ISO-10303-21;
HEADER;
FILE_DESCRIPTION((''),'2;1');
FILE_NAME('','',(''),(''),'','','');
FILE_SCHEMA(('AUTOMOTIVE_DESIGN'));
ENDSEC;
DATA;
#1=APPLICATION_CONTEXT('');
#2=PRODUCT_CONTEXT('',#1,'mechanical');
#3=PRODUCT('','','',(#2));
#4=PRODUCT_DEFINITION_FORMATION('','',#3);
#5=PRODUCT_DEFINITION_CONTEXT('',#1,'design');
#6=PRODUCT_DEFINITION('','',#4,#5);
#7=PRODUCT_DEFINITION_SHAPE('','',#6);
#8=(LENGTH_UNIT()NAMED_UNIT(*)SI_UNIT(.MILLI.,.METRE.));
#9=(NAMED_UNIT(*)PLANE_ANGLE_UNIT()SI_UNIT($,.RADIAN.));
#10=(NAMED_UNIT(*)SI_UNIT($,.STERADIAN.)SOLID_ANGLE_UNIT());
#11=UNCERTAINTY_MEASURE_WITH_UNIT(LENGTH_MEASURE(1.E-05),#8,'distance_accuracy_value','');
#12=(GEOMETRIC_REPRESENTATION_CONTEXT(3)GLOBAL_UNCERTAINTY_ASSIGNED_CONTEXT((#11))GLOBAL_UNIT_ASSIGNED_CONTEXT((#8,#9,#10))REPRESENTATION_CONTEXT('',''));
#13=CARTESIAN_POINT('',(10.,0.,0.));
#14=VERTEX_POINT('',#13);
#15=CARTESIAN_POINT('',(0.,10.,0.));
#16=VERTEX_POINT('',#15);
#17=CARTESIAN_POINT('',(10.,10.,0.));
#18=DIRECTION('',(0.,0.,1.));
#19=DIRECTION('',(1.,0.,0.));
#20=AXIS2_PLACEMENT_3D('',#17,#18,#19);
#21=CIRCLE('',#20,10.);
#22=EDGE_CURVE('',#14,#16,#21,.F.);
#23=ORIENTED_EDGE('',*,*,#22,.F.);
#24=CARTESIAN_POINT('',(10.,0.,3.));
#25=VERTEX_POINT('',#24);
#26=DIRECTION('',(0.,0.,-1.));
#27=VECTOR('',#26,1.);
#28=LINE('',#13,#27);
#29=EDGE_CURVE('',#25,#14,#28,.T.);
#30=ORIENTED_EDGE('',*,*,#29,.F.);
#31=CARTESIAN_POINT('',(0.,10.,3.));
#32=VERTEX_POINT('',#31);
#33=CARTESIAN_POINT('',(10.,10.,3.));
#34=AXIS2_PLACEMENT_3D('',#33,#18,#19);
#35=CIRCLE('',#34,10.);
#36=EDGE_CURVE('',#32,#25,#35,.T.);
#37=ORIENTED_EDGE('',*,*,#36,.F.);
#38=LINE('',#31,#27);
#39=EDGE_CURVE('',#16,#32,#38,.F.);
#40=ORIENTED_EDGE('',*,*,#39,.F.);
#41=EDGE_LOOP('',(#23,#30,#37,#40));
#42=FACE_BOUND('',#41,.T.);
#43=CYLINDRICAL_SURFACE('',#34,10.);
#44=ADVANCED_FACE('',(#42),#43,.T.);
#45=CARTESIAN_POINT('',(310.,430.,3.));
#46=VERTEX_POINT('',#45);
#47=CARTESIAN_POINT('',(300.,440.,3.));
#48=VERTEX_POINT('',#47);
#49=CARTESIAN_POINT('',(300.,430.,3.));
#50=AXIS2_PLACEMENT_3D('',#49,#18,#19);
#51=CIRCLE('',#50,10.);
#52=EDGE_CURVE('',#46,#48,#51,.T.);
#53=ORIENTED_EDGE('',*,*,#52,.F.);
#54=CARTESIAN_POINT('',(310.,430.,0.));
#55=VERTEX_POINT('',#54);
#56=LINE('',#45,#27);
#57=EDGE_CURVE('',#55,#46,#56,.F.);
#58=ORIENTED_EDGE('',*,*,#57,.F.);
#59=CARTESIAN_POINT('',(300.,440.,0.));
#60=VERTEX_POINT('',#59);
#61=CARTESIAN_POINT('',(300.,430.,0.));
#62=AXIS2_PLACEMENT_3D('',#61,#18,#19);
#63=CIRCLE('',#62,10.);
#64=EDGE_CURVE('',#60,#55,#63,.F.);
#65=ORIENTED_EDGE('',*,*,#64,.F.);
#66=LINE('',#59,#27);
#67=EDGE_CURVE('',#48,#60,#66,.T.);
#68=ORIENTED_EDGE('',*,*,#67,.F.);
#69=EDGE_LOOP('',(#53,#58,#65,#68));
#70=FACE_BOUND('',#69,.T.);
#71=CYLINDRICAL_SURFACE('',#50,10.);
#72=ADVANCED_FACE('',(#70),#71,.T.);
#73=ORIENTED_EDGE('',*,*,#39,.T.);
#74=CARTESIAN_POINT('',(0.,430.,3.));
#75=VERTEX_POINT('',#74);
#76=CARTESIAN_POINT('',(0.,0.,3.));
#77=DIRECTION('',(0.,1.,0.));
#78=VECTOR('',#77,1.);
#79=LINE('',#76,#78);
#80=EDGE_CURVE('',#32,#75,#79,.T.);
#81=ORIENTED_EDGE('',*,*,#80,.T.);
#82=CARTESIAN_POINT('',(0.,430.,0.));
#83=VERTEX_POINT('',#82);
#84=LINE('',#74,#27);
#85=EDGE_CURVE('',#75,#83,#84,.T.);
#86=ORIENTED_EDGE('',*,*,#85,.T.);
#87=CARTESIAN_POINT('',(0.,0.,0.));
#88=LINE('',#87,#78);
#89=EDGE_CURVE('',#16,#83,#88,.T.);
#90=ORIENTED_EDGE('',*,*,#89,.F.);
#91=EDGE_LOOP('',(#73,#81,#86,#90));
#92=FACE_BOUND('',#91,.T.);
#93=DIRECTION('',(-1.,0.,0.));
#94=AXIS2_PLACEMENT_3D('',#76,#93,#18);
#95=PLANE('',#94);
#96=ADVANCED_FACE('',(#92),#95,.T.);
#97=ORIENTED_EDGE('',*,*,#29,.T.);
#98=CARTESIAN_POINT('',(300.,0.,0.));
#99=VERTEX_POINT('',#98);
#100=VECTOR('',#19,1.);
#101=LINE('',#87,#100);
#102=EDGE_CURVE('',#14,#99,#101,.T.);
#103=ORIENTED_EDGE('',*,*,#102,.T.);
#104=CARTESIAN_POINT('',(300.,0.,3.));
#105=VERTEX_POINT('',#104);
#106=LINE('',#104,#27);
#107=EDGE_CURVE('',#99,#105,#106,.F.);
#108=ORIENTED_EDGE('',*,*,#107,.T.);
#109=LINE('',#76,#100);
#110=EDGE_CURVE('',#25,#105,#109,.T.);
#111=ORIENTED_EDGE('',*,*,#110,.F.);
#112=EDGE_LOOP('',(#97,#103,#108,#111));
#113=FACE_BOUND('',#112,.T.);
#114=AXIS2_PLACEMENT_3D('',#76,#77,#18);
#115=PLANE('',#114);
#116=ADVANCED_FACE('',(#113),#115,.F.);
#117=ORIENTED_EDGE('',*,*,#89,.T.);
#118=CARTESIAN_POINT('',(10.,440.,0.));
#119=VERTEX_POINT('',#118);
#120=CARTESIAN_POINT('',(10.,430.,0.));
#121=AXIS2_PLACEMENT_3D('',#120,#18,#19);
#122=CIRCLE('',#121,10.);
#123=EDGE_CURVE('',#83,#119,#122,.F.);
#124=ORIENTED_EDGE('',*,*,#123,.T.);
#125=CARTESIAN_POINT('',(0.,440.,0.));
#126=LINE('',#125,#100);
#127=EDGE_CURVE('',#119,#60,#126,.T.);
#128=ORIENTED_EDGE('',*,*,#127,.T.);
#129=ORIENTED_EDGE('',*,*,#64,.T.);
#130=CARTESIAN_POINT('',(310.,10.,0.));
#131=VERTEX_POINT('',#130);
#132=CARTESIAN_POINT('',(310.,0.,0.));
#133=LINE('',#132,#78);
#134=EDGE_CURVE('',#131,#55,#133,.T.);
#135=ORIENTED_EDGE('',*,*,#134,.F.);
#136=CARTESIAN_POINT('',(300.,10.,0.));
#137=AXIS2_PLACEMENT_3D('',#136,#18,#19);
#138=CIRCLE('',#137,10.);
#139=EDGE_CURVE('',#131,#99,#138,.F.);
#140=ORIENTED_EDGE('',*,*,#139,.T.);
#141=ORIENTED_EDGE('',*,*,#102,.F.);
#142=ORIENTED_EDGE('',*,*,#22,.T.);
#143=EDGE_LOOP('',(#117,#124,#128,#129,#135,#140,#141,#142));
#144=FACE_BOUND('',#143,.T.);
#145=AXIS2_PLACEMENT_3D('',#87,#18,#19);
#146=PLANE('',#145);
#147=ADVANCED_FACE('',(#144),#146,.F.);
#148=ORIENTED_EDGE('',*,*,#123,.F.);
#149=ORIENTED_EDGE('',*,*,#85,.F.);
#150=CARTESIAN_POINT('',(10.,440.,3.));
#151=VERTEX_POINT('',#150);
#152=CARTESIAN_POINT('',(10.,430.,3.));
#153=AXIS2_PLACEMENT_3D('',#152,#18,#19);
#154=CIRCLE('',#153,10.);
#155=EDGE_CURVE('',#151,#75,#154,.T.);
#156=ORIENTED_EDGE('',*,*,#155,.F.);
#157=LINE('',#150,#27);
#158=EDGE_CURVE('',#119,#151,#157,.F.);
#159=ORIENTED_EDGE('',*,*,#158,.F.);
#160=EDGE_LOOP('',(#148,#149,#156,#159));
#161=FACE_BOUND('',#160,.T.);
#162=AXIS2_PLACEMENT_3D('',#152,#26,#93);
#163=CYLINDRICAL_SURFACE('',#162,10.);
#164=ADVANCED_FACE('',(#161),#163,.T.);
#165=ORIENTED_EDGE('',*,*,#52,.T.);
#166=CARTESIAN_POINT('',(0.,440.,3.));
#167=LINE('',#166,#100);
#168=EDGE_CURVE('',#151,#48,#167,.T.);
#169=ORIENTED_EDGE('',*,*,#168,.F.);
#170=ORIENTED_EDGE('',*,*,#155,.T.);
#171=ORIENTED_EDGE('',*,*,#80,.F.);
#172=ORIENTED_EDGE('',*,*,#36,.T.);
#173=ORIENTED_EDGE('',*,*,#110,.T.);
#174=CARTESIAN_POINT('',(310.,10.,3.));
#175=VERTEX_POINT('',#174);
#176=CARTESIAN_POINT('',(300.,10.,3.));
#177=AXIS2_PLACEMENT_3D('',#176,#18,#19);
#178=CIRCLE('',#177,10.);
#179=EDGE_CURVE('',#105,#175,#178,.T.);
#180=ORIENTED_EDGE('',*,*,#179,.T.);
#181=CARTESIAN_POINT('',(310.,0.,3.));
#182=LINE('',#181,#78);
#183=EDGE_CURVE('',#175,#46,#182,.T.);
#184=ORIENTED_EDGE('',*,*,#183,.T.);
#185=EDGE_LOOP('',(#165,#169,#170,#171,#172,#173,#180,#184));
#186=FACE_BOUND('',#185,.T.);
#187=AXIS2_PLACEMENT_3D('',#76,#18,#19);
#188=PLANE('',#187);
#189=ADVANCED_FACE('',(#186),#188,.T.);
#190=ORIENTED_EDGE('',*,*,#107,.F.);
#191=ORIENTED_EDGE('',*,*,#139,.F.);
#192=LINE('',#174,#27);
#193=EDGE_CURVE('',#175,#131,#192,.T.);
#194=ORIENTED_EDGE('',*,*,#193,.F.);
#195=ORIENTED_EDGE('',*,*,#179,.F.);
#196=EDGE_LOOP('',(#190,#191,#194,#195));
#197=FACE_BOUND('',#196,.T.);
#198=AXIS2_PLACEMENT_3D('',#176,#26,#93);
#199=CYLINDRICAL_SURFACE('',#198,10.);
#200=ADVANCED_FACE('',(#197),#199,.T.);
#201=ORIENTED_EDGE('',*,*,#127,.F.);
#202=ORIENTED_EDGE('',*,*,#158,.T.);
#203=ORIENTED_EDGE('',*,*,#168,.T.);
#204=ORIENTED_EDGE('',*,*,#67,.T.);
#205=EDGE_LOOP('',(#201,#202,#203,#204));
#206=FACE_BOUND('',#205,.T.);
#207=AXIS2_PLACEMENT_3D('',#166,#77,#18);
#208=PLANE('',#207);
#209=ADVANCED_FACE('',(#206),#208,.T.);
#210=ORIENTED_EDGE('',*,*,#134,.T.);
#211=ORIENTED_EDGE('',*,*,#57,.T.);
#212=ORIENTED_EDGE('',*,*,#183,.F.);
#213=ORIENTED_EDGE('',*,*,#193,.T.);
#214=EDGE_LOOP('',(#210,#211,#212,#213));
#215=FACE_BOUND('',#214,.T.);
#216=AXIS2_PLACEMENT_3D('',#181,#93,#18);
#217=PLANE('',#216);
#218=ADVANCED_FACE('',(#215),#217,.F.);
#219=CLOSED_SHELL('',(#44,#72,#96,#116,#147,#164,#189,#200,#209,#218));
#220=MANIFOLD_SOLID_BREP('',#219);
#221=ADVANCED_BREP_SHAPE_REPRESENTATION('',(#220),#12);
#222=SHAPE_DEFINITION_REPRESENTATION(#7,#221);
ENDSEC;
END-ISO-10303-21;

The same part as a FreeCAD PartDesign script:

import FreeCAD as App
import Part
import Sketcher

V = App.Vector
Q = App.Units.Quantity


def edges_at(feature, points):
    """Names of the edges that pass closest to the given points."""
    edges = feature.Shape.Edges
    near = lambda p: min(range(len(edges)), key=lambda i: edges[i].distToShape(Part.Vertex(*p))[0])
    return sorted({f"Edge{near(p) + 1}" for p in points})


def add_polygon(sketch, points):
    """Adds a closed chain of lines whose ends are joined by coincident constraints."""
    first, n = sketch.GeometryCount, len(points)
    for a, b in zip(points, points[1:] + points[:1]):
        sketch.addGeometry(Part.LineSegment(App.Vector(*a, 0), App.Vector(*b, 0)), False)
    for i in range(n):
        sketch.addConstraint(Sketcher.Constraint("Coincident", first + i, 2, first + (i + 1) % n, 1))

doc = App.newDocument("Part")
body = doc.addObject("PartDesign::Body", "Body")

# Sketch on XY plane
sketch1 = doc.addObject("Sketcher::SketchObject", "Sketch")
body.addObject(sketch1)
sketch1.AttachmentSupport = (doc.XY_Plane, [""])
sketch1.MapMode = "FlatFace"
add_polygon(sketch1, [(0, 440), (0, 0), (310, 0), (310, 440)])  # lines 0-3
sketch1.addConstraint(Sketcher.Constraint("Vertical", 0))
sketch1.addConstraint(Sketcher.Constraint("Horizontal", 1))
sketch1.addConstraint(Sketcher.Constraint("Vertical", 2))
sketch1.addConstraint(Sketcher.Constraint("Horizontal", 3))
sketch1.addConstraint(Sketcher.Constraint("Coincident", 0, 2, -1, 1))
sketch1.addConstraint(Sketcher.Constraint("DistanceX", 1, 1, 1, 2, Q("310 mm")))
sketch1.addConstraint(Sketcher.Constraint("DistanceY", 0, 2, 0, 1, Q("440 mm")))
pad1 = doc.addObject("PartDesign::Pad", "Pad")
body.addObject(pad1)
pad1.Profile = sketch1
pad1.Length = 3
doc.recompute()

fillet = doc.addObject("PartDesign::Fillet", "Fillet")
body.addObject(fillet)
fillet.Base = (pad1, edges_at(pad1, [
    (0, 440, 1.5),
    (0, 0, 1.5),
    (310, 0, 1.5),
    (310, 440, 1.5),
]))
fillet.Radius = 10

doc.recompute()
